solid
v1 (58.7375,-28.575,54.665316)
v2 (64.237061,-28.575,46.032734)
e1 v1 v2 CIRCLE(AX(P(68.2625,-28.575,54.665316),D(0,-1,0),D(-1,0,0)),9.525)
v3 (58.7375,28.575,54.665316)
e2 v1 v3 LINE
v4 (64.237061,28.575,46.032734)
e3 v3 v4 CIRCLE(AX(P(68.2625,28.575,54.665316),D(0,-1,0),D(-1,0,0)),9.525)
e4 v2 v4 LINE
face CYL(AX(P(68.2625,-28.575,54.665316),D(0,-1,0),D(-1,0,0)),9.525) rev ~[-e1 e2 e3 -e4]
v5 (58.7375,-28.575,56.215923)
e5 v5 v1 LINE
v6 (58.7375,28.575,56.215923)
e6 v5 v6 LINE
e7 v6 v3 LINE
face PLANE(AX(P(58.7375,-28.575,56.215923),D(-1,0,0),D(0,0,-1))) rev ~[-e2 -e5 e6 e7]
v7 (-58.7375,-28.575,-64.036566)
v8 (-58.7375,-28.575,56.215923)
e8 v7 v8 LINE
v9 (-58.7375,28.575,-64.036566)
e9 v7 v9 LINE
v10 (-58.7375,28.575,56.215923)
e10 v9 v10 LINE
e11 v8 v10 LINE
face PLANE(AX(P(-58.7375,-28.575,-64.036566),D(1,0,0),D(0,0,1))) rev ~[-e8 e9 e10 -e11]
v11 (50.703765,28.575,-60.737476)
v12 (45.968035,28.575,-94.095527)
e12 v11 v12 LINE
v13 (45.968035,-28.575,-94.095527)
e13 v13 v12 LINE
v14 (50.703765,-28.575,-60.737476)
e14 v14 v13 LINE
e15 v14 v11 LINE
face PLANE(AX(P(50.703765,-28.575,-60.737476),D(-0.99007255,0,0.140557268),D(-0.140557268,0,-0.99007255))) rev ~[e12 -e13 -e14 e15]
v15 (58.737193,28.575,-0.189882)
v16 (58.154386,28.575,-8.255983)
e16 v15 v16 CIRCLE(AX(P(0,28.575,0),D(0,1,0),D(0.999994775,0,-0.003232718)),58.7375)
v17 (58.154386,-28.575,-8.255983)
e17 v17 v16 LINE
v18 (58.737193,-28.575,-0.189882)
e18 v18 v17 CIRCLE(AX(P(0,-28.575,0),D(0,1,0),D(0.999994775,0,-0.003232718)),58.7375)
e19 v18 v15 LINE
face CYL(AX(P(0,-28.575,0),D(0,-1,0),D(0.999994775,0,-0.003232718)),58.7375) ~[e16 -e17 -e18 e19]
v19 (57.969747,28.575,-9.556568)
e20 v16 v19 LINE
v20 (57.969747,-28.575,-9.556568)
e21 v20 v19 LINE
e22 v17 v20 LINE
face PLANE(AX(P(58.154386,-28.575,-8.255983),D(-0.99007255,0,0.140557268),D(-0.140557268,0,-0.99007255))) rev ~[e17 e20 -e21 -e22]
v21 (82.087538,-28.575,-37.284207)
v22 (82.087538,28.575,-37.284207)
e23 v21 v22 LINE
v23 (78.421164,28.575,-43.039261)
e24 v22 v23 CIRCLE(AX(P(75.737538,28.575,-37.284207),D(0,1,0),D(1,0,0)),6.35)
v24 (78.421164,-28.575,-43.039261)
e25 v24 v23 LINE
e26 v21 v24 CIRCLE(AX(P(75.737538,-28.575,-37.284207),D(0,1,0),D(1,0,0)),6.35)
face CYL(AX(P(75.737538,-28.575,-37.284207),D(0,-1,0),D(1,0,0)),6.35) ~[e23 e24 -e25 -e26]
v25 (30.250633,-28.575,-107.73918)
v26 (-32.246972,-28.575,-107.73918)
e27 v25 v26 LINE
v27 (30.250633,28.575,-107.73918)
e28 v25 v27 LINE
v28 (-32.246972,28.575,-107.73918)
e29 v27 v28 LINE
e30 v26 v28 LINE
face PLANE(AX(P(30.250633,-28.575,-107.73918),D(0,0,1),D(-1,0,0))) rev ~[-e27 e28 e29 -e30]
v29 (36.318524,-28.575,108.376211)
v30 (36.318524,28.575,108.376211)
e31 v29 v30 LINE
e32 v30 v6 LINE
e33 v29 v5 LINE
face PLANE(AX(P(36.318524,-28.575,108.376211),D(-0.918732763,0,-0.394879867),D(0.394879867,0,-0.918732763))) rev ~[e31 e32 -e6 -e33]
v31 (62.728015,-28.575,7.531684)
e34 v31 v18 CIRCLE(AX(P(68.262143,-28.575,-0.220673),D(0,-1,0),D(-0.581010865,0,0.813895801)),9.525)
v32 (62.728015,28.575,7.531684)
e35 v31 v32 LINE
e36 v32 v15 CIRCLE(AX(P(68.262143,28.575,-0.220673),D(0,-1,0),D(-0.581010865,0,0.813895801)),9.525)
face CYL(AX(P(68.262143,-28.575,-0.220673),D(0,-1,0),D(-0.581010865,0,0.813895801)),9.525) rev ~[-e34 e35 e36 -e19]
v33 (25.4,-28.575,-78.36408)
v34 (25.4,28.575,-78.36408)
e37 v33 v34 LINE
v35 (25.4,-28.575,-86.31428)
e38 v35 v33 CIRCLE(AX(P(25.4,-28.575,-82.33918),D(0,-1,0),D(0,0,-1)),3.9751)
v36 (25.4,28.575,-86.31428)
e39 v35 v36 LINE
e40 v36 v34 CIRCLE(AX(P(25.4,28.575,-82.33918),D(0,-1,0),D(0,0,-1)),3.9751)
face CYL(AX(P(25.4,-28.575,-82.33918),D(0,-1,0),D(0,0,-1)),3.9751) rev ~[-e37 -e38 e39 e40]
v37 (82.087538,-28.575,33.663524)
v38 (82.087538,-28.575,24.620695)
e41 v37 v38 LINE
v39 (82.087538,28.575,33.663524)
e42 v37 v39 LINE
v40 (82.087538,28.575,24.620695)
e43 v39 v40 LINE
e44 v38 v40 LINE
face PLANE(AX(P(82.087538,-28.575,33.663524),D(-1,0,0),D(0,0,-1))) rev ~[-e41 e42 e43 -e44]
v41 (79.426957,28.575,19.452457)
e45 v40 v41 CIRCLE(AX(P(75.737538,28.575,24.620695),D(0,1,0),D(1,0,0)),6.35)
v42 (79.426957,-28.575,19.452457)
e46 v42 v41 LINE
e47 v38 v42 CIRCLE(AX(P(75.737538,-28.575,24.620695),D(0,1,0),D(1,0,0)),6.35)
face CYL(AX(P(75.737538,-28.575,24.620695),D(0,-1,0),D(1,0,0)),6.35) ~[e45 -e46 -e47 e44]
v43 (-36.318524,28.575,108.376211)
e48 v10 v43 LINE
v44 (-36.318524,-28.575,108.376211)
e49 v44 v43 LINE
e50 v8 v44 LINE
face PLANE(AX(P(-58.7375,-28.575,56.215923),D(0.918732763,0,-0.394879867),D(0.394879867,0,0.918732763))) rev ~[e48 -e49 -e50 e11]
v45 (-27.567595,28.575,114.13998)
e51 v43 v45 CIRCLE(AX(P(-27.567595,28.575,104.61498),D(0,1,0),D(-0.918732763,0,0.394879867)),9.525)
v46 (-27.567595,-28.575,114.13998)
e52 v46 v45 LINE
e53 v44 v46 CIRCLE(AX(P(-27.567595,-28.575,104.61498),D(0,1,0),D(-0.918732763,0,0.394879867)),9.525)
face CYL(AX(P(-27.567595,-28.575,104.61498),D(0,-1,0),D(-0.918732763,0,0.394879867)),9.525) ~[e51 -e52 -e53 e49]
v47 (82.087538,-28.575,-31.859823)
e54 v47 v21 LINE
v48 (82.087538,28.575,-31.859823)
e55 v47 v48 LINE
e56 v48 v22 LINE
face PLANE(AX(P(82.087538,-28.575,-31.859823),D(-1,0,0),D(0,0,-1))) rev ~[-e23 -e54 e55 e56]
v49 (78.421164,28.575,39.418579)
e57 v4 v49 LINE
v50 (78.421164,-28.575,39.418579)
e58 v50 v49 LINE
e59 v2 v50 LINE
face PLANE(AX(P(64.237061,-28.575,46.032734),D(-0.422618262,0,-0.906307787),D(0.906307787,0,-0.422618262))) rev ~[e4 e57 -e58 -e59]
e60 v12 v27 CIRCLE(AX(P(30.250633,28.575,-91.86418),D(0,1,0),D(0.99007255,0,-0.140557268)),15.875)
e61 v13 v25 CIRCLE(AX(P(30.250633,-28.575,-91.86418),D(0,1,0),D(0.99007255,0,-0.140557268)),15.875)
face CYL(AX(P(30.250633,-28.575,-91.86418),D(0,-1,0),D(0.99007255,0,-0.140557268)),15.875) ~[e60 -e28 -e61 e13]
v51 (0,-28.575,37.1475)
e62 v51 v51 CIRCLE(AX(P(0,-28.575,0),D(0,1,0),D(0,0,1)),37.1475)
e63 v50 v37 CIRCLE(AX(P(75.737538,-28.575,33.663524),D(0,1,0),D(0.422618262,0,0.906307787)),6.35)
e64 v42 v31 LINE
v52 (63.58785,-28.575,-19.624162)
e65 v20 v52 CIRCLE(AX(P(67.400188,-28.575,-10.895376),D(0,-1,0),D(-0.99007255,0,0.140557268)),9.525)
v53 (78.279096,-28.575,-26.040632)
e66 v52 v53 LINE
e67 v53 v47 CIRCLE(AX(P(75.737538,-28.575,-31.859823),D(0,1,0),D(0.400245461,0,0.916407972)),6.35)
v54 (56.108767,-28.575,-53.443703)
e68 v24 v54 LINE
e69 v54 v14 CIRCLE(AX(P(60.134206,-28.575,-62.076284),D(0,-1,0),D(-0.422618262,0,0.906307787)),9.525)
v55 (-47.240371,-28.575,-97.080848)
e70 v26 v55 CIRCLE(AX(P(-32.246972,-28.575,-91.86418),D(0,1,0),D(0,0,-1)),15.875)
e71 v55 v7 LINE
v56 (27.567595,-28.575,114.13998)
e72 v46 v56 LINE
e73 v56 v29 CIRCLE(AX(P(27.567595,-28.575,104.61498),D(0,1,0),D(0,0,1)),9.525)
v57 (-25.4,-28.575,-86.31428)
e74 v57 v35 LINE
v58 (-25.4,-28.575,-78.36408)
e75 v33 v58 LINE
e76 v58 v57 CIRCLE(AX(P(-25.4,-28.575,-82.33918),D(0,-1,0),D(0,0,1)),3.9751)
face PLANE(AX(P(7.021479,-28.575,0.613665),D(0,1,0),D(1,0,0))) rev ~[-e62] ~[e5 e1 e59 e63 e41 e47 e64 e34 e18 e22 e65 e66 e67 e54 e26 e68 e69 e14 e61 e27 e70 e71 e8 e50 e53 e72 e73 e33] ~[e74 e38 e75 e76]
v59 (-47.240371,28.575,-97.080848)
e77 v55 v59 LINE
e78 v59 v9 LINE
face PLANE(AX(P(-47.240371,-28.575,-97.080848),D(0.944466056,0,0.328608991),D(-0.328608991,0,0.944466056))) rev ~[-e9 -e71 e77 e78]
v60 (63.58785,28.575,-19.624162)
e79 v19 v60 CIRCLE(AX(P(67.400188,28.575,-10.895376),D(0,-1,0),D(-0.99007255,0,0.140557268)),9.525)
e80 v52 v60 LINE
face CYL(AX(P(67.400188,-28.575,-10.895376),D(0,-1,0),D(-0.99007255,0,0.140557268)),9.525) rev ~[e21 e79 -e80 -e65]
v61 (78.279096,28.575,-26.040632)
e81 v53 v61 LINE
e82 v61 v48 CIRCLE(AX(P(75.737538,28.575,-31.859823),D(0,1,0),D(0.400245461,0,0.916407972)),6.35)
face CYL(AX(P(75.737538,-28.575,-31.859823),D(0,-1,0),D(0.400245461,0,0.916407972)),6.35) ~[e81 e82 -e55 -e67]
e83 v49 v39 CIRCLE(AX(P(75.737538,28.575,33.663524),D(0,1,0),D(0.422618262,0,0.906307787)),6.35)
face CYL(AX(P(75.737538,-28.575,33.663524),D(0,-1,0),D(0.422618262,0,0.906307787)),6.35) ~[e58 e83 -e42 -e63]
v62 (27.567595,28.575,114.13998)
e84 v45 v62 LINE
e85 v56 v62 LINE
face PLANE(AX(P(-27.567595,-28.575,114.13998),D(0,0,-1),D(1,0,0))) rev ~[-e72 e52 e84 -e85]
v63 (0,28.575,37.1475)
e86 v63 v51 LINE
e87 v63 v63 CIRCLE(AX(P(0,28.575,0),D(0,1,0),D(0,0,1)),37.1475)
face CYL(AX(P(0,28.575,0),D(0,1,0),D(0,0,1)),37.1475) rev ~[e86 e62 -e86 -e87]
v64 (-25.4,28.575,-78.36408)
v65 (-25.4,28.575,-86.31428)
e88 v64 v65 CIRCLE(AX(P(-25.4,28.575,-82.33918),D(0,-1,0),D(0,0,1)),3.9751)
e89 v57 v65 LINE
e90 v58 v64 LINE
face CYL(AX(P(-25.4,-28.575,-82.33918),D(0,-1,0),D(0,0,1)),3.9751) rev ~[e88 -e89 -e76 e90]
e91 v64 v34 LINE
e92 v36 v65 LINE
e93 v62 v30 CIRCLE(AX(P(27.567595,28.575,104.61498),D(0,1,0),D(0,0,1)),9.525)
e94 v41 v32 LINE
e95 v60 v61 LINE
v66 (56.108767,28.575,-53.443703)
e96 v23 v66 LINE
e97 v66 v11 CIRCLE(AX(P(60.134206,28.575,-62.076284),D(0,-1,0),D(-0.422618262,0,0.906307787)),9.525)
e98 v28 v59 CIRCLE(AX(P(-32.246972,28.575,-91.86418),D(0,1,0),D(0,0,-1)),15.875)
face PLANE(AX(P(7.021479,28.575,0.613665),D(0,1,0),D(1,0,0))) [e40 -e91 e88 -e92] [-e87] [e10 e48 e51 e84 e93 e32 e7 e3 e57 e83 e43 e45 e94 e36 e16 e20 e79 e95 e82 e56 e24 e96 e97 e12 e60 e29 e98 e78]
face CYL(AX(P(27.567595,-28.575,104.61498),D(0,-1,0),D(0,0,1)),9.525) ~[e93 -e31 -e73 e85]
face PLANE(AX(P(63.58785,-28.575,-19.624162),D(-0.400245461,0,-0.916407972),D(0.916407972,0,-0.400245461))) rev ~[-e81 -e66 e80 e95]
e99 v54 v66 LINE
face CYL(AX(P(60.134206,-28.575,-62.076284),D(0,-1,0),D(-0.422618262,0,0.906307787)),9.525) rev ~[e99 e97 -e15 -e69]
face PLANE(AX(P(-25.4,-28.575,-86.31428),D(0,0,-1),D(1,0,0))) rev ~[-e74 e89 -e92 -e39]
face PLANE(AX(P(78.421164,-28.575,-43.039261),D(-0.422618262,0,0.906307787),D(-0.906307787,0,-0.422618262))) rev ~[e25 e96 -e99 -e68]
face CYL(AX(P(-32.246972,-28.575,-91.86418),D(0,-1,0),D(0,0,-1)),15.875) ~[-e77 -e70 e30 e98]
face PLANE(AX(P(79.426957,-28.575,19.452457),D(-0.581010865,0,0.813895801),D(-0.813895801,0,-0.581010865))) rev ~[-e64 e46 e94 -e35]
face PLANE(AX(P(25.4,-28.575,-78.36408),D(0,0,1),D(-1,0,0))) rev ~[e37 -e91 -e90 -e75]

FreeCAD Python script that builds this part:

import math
import FreeCAD as App
import Part
import Sketcher

V = App.Vector
Q = App.Units.Quantity

doc = App.newDocument("Part")
body = doc.addObject("PartDesign::Body", "Body")

sketch1 = body.newObject("Sketcher::SketchObject", "Sketch")
sketch1.AttachmentSupport = (doc.getObject("XZ_Plane"), [""])
sketch1.MapMode = "FlatFace"
sketch1.addGeometry([
    Part.LineSegment(V(-58.7, 56.2, 0), V(-36.3, 108.4, 0)),
    Part.ArcOfCircle(Part.Circle(V(-27.6, 104.6, 0), V(0, 0, 1), 9.5), math.radians(90), math.radians(157)),
    Part.LineSegment(V(-27.6, 114.1, 0), V(27.6, 114.1, 0)),
    Part.ArcOfCircle(Part.Circle(V(27.6, 104.6, 0), V(0, 0, 1), 9.5), math.radians(23), math.radians(90)),
    Part.LineSegment(V(36.3, 108.4, 0), V(58.7, 56.2, 0)),
    Part.LineSegment(V(58.7, 56.2, 0), V(58.7, 54.7, 0)),
    Part.ArcOfCircle(Part.Circle(V(68.3, 54.7, 0), V(0, 0, 1), 9.5), math.radians(-180), math.radians(-115)),
    Part.LineSegment(V(64.2, 46, 0), V(78.4, 39.4, 0)),
    Part.ArcOfCircle(Part.Circle(V(75.7, 33.7, 0), V(0, 0, 1), 6.3), math.radians(0), math.radians(65)),
    Part.LineSegment(V(82.1, 33.7, 0), V(82.1, 24.6, 0)),
    Part.ArcOfCircle(Part.Circle(V(75.7, 24.6, 0), V(0, 0, 1), 6.3), math.radians(-54), math.radians(0)),
    Part.LineSegment(V(79.4, 19.5, 0), V(62.7, 7.5, 0)),
    Part.ArcOfCircle(Part.Circle(V(68.3, -0.2, 0), V(0, 0, 1), 9.5), math.radians(126), math.radians(180)),
    Part.ArcOfCircle(Part.Circle(V(0, 0, 0), V(0, 0, 1), 58.7), math.radians(-8.08), math.radians(-0.19)),
    Part.LineSegment(V(58.2, -8.3, 0), V(58, -9.6, 0)),
    Part.ArcOfCircle(Part.Circle(V(67.4, -10.9, 0), V(0, 0, 1), 9.5), math.radians(172), math.radians(246)),
    Part.LineSegment(V(63.6, -19.6, 0), V(78.3, -26, 0)),
    Part.ArcOfCircle(Part.Circle(V(75.7, -31.9, 0), V(0, 0, 1), 6.3), math.radians(0), math.radians(66)),
    Part.LineSegment(V(82.1, -31.9, 0), V(82.1, -37.3, 0)),
    Part.ArcOfCircle(Part.Circle(V(75.7, -37.3, 0), V(0, 0, 1), 6.4), math.radians(-65), math.radians(0)),
    Part.LineSegment(V(78.4, -43, 0), V(56.1, -53.4, 0)),
    Part.ArcOfCircle(Part.Circle(V(60.1, -62.1, 0), V(0, 0, 1), 9.5), math.radians(115), math.radians(172)),
    Part.LineSegment(V(50.7, -60.7, 0), V(46, -94.1, 0)),
    Part.ArcOfCircle(Part.Circle(V(30.3, -91.9, 0), V(0, 0, 1), 15.9), math.radians(-90), math.radians(-8)),
    Part.LineSegment(V(30.3, -107.7, 0), V(-32.2, -107.7, 0)),
    Part.ArcOfCircle(Part.Circle(V(-32.2, -91.9, 0), V(0, 0, 1), 15.9), math.radians(-161), math.radians(-90)),
    Part.LineSegment(V(-47.2, -97.1, 0), V(-58.7, -64, 0)),
    Part.LineSegment(V(-58.7, -64, 0), V(-58.7, 56.2, 0)),
], False)
sketch1.addConstraint([
    Sketcher.Constraint("Tangent", 0, 2, 1, 2),
    Sketcher.Constraint("Tangent", 1, 1, 2, 1),
    Sketcher.Constraint("Tangent", 2, 2, 3, 2),
    Sketcher.Constraint("Tangent", 3, 1, 4, 1),
    Sketcher.Constraint("Coincident", 4, 2, 5, 1),
    Sketcher.Constraint("Tangent", 5, 2, 6, 1),
    Sketcher.Constraint("Tangent", 6, 2, 7, 1),
    Sketcher.Constraint("Tangent", 7, 2, 8, 2),
    Sketcher.Constraint("Tangent", 8, 1, 9, 1),
    Sketcher.Constraint("Tangent", 9, 2, 10, 2),
    Sketcher.Constraint("Tangent", 10, 1, 11, 1),
    Sketcher.Constraint("Tangent", 11, 2, 12, 1),
    Sketcher.Constraint("Tangent", 12, 2, 13, 2),
    Sketcher.Constraint("Tangent", 13, 1, 14, 1),
    Sketcher.Constraint("Tangent", 14, 2, 15, 1),
    Sketcher.Constraint("Tangent", 15, 2, 16, 1),
    Sketcher.Constraint("Tangent", 16, 2, 17, 2),
    Sketcher.Constraint("Tangent", 17, 1, 18, 1),
    Sketcher.Constraint("Tangent", 18, 2, 19, 2),
    Sketcher.Constraint("Tangent", 19, 1, 20, 1),
    Sketcher.Constraint("Tangent", 20, 2, 21, 1),
    Sketcher.Constraint("Tangent", 21, 2, 22, 1),
    Sketcher.Constraint("Tangent", 22, 2, 23, 2),
    Sketcher.Constraint("Tangent", 23, 1, 24, 1),
    Sketcher.Constraint("Tangent", 24, 2, 25, 2),
    Sketcher.Constraint("Tangent", 25, 1, 26, 1),
    Sketcher.Constraint("Coincident", 26, 2, 27, 1),
    Sketcher.Constraint("Coincident", 27, 2, 0, 1),
    Sketcher.Constraint("Horizontal", 2),
    Sketcher.Constraint("Vertical", 5),
    Sketcher.Constraint("Vertical", 9),
    Sketcher.Constraint("Vertical", 18),
    Sketcher.Constraint("Horizontal", 24),
    Sketcher.Constraint("Vertical", 27),
    Sketcher.Constraint("Coincident", 13, 3, -1, 1),
    Sketcher.Constraint("Equal", 1, 3),
    Sketcher.Constraint("Equal", 3, 6),
    Sketcher.Constraint("Equal", 8, 10),
    Sketcher.Constraint("Equal", 6, 12),
    Sketcher.Constraint("Equal", 12, 15),
    Sketcher.Constraint("Equal", 10, 17),
    Sketcher.Constraint("Equal", 17, 19),
    Sketcher.Constraint("Equal", 15, 21),
    Sketcher.Constraint("Equal", 23, 25),
    Sketcher.Constraint("Symmetric", 0, 2, 3, 1, -2),
    Sketcher.Constraint("Parallel", 14, 22),
    Sketcher.Constraint("Horizontal", 4, 2, 27, 2),
    Sketcher.Constraint("Vertical", 10, 3, 17, 3),
    Sketcher.Constraint("Vertical", 7, 2, 19, 1),
    Sketcher.Constraint("Radius", 8, Q("0.25 in")),
    Sketcher.Constraint("Angle", 7, Q("-25 deg")),
    Sketcher.Constraint("Radius", 1, Q("0.375 in")),
    Sketcher.Constraint("Radius", 13, Q("2.3125 in")),
    Sketcher.Constraint("Radius", 23, Q("0.625 in")),
    Sketcher.Constraint("DistanceX", -1, 1, 6, 3, Q("2.6875 in")),
    Sketcher.Constraint("DistanceY", -1, 1, 1, 3, Q("4.1187 in")),
    Sketcher.Constraint("DistanceY", 23, 3, -1, 1, Q("3.6167 in")),
    Sketcher.Constraint("DistanceY", 7, 2, 6, 2, Q("0.2603998 in")),
    Sketcher.Constraint("DistanceY", 22, 2, 21, 3, Q("1.2606001 in")),
    Sketcher.Constraint("DistanceX", 2, 1, 2, 2, 55.135189),
    Sketcher.Constraint("DistanceY", 9, 2, 9, 1, 9.042829),
    Sketcher.Constraint("DistanceY", 27, 1, 27, 2, 120.252488),
    Sketcher.Constraint("DistanceY", 15, 3, 8, 3, 44.5589),
    Sketcher.Constraint("DistanceY", 19, 3, 10, 3, 61.904902),
    Sketcher.Constraint("DistanceY", 8, 3, 4, 2, 22.552399),
    Sketcher.Constraint("DistanceY", 13, 1, 12, 2, 8.066101),
    Sketcher.Constraint("DistanceX", 13, 1, 15, 3, 9.245801),
    Sketcher.Constraint("DistanceX", 21, 2, 19, 1, 27.717398),
    Sketcher.Constraint("DistanceX", 25, 1, 25, 3, 14.993399),
    Sketcher.Constraint("Distance", 16, 16.031339),
])
pad1 = body.newObject("PartDesign::Pad", "Pad")
pad1.Profile = sketch1
pad1.Type = "TwoLengths"
pad1.Length = Q("1.125 in")
pad1.Length2 = Q("1.125 in")
pad1.Reversed = True

sketch2 = body.newObject("Sketcher::SketchObject", "Sketch001")
sketch2.AttachmentSupport = (doc.getObject("XZ_Plane"), [""])
sketch2.MapMode = "FlatFace"
sketch2.AttachmentOffset = App.Placement(V(0, 0, -1.125 * 25.4), App.Rotation())
sketch2.addGeometry(Part.Circle(V(0, 0, 0), V(0, 0, 1), 37), False)
sketch2.addConstraint([
    Sketcher.Constraint("Coincident", 0, 3, -1, 1),
    Sketcher.Constraint("Diameter", 0, Q("2.925 in")),
])
pocket1 = body.newObject("PartDesign::Pocket", "Pocket")
pocket1.Profile = sketch2
pocket1.Type = "ThroughAll"
pocket1.Reversed = True

sketch3 = body.newObject("Sketcher::SketchObject", "Sketch002")
sketch3.AttachmentSupport = (doc.getObject("XZ_Plane"), [""])
sketch3.MapMode = "FlatFace"
sketch3.AttachmentOffset = App.Placement(V(0, 0, 1.125 * 25.4), App.Rotation())
sketch3.addGeometry([
    Part.LineSegment(V(-25.4, -86.3, 0), V(25.4, -86.3, 0)),
    Part.ArcOfCircle(Part.Circle(V(25.4, -82.3, 0), V(0, 0, 1), 4), math.radians(-90), math.radians(90)),
    Part.LineSegment(V(25.4, -78.4, 0), V(-25.4, -78.4, 0)),
    Part.ArcOfCircle(Part.Circle(V(-25.4, -82.3, 0), V(0, 0, 1), 4), math.radians(90), math.radians(270)),
], False)
sketch3.addConstraint([
    Sketcher.Constraint("Tangent", 0, 2, 1, 1),
    Sketcher.Constraint("Tangent", 1, 2, 2, 1),
    Sketcher.Constraint("Tangent", 2, 2, 3, 1),
    Sketcher.Constraint("Tangent", 3, 2, 0, 1),
    Sketcher.Constraint("Horizontal", 0),
    Sketcher.Constraint("Horizontal", 2),
    Sketcher.Constraint("DistanceX", 0, 1, 0, 2, Q("2 in")),
    Sketcher.Constraint("DistanceX", -1, 1, 1, 3, Q("1 in")),
    Sketcher.Constraint("Radius", 1, Q("0.1565 in")),
    Sketcher.Constraint("DistanceY", 1, 3, -1, 1, Q("3.2417 in")),
])
pocket2 = body.newObject("PartDesign::Pocket", "Pocket001")
pocket2.Profile = sketch3
pocket2.Type = "ThroughAll"

doc.recompute()
